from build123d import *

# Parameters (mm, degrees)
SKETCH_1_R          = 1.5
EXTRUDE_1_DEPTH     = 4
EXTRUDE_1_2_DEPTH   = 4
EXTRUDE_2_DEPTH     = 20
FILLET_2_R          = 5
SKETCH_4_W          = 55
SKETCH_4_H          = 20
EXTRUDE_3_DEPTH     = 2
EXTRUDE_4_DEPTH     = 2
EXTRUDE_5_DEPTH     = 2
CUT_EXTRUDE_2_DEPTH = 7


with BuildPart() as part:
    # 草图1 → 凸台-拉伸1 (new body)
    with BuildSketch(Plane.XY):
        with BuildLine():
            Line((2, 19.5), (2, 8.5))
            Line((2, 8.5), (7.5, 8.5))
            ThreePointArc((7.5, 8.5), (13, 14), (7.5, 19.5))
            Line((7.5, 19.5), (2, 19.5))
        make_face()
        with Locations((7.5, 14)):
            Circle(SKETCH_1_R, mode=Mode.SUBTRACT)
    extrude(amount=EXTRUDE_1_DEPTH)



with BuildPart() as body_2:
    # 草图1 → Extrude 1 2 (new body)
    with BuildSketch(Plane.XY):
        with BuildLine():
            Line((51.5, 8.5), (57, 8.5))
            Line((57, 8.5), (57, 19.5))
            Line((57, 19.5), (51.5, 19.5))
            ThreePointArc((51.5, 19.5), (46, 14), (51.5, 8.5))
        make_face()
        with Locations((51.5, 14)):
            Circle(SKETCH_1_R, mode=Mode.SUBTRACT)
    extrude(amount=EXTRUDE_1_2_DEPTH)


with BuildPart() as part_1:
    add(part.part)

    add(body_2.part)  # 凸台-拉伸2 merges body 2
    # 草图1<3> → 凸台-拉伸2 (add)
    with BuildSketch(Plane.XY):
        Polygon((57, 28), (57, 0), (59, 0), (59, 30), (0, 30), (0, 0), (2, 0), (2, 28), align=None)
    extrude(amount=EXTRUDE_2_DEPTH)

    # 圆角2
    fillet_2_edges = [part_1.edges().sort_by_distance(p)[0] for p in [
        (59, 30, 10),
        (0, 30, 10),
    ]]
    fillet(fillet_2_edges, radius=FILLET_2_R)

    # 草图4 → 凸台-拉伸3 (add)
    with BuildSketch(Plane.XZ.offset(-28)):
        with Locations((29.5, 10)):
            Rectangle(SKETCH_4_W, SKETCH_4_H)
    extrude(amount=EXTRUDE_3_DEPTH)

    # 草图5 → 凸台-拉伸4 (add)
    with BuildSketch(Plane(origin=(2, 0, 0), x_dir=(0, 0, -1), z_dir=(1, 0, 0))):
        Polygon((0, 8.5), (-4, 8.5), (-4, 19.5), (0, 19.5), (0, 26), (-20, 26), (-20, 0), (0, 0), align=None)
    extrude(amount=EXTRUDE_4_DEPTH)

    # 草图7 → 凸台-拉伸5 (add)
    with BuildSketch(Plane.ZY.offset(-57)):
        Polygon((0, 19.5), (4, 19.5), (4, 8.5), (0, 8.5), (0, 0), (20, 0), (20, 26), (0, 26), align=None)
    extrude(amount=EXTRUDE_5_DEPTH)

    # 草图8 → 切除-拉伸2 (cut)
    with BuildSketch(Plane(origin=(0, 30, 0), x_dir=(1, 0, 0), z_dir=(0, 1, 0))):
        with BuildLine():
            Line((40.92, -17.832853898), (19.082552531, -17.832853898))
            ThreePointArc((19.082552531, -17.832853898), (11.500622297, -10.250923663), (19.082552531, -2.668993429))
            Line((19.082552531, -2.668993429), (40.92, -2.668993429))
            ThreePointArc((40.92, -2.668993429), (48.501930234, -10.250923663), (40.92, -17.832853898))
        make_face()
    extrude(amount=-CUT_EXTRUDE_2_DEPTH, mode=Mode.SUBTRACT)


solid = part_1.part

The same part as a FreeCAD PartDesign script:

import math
import FreeCAD as App
import Part
import Sketcher
Q = App.Units.Quantity


def edges_at(feature, points):
    """Names of the edges that pass closest to the given points."""
    edges = feature.Shape.Edges
    near = lambda p: min(range(len(edges)), key=lambda i: edges[i].distToShape(Part.Vertex(*p))[0])
    return sorted({f"Edge{near(p) + 1}" for p in points})

doc = App.newDocument("Part")
body = doc.addObject("PartDesign::Body", "Body")

# Sketch on XY plane
sketch1 = doc.addObject("Sketcher::SketchObject", "Sketch")
body.addObject(sketch1)
sketch1.AttachmentSupport = (doc.XY_Plane, [""])
sketch1.MapMode = "FlatFace"
sketch1.addGeometry([
    Part.LineSegment(App.Vector(2, 19.5, 0), App.Vector(2, 8.5, 0)),  # 0
    Part.LineSegment(App.Vector(2, 8.5, 0), App.Vector(7.5, 8.5, 0)),  # 1
    Part.ArcOfCircle(Part.Circle(App.Vector(7.5, 14, 0), App.Vector(0, 0, 1), 5.5), math.radians(-90), math.radians(90)),  # 2
    Part.LineSegment(App.Vector(7.5, 19.5, 0), App.Vector(2, 19.5, 0)),  # 3
    Part.Circle(App.Vector(7.5, 14, 0), App.Vector(0, 0, 1), 1.5),  # 4
], False)
sketch1.addConstraint([
    Sketcher.Constraint("Coincident", 0, 2, 1, 1),
    Sketcher.Constraint("Tangent", 1, 2, 2, 1),
    Sketcher.Constraint("Tangent", 2, 2, 3, 1),
    Sketcher.Constraint("Coincident", 3, 2, 0, 1),
    Sketcher.Constraint("Vertical", 0),
    Sketcher.Constraint("Horizontal", 1),
    Sketcher.Constraint("Horizontal", 3),
    Sketcher.Constraint("Coincident", 4, 3, 2, 3),
    Sketcher.Constraint("Diameter", 4, Q("3 mm")),
    Sketcher.Constraint("Radius", 2, Q("5.5 mm")),
    Sketcher.Constraint("DistanceX", 1, 1, 1, 2, Q("5.5 mm")),
    Sketcher.Constraint("DistanceY", -1, 1, 2, 3, Q("14 mm")),
    Sketcher.Constraint("DistanceX", -1, 1, 0, 2, Q("2 mm")),
])
pad1 = doc.addObject("PartDesign::Pad", "Pad")
body.addObject(pad1)
pad1.Profile = sketch1
pad1.Length = 4
body2 = doc.addObject("PartDesign::Body", "Body001")

# Sketch on XY plane
sketch2 = doc.addObject("Sketcher::SketchObject", "Sketch001")
body2.addObject(sketch2)
sketch2.AttachmentSupport = (doc.getObject("XY_Plane001"), [""])
sketch2.MapMode = "FlatFace"
sketch2.addGeometry([
    Part.LineSegment(App.Vector(51.5, 8.5, 0), App.Vector(57, 8.5, 0)),  # 0
    Part.LineSegment(App.Vector(57, 8.5, 0), App.Vector(57, 19.5, 0)),  # 1
    Part.LineSegment(App.Vector(57, 19.5, 0), App.Vector(51.5, 19.5, 0)),  # 2
    Part.ArcOfCircle(Part.Circle(App.Vector(51.5, 14, 0), App.Vector(0, 0, 1), 5.5), math.radians(90), math.radians(270)),  # 3
    Part.Circle(App.Vector(51.5, 14, 0), App.Vector(0, 0, 1), 1.5),  # 4
], False)
sketch2.addConstraint([
    Sketcher.Constraint("Coincident", 0, 2, 1, 1),
    Sketcher.Constraint("Coincident", 1, 2, 2, 1),
    Sketcher.Constraint("Tangent", 2, 2, 3, 1),
    Sketcher.Constraint("Tangent", 3, 2, 0, 1),
    Sketcher.Constraint("Horizontal", 0),
    Sketcher.Constraint("Vertical", 1),
    Sketcher.Constraint("Horizontal", 2),
    Sketcher.Constraint("Coincident", 4, 3, 3, 3),
    Sketcher.Constraint("Diameter", 4, Q("3 mm")),
    Sketcher.Constraint("Radius", 3, Q("5.5 mm")),
    Sketcher.Constraint("DistanceX", 0, 1, 0, 2, Q("5.5 mm")),
    Sketcher.Constraint("DistanceY", -1, 1, 3, 3, Q("14 mm")),
    Sketcher.Constraint("DistanceX", -1, 1, 0, 2, Q("57 mm")),
])
pad2 = doc.addObject("PartDesign::Pad", "Pad001")
body2.addObject(pad2)
pad2.Profile = sketch2
pad2.Length = 4
body.AllowCompound = True
doc.recompute()

boolean = doc.addObject("PartDesign::Boolean", "Boolean")
body.addObject(boolean)
boolean.Type = "Fuse"
boolean.addObjects([body2])

# Sketch on XY plane
sketch3 = doc.addObject("Sketcher::SketchObject", "Sketch002")
body.addObject(sketch3)
sketch3.AttachmentSupport = (doc.XY_Plane, [""])
sketch3.MapMode = "FlatFace"
sketch3.addGeometry([
    Part.LineSegment(App.Vector(57, 28, 0), App.Vector(57, 0, 0)),  # 0
    Part.LineSegment(App.Vector(57, 0, 0), App.Vector(59, 0, 0)),  # 1
    Part.LineSegment(App.Vector(59, 0, 0), App.Vector(59, 30, 0)),  # 2
    Part.LineSegment(App.Vector(59, 30, 0), App.Vector(0, 30, 0)),  # 3
    Part.LineSegment(App.Vector(0, 30, 0), App.Vector(0, 0, 0)),  # 4
    Part.LineSegment(App.Vector(0, 0, 0), App.Vector(2, 0, 0)),  # 5
    Part.LineSegment(App.Vector(2, 0, 0), App.Vector(2, 28, 0)),  # 6
    Part.LineSegment(App.Vector(2, 28, 0), App.Vector(57, 28, 0)),  # 7
], False)
sketch3.addConstraint([
    Sketcher.Constraint("Coincident", 0, 2, 1, 1),
    Sketcher.Constraint("Coincident", 1, 2, 2, 1),
    Sketcher.Constraint("Coincident", 2, 2, 3, 1),
    Sketcher.Constraint("Coincident", 3, 2, 4, 1),
    Sketcher.Constraint("Coincident", 4, 2, 5, 1),
    Sketcher.Constraint("Coincident", 5, 2, 6, 1),
    Sketcher.Constraint("Coincident", 6, 2, 7, 1),
    Sketcher.Constraint("Coincident", 7, 2, 0, 1),
    Sketcher.Constraint("Vertical", 0),
    Sketcher.Constraint("Horizontal", 1),
    Sketcher.Constraint("Vertical", 2),
    Sketcher.Constraint("Horizontal", 3),
    Sketcher.Constraint("Vertical", 4),
    Sketcher.Constraint("Horizontal", 5),
    Sketcher.Constraint("Vertical", 6),
    Sketcher.Constraint("Horizontal", 7),
    Sketcher.Constraint("Coincident", 4, 2, -1, 1),
    Sketcher.Constraint("PointOnObject", 0, 2, -1),
    Sketcher.Constraint("Equal", 1, 5),
    Sketcher.Constraint("DistanceX", 1, 1, 1, 2, Q("2 mm")),
    Sketcher.Constraint("DistanceX", 3, 2, 3, 1, Q("59 mm")),
    Sketcher.Constraint("DistanceY", 0, 2, 0, 1, Q("28 mm")),
    Sketcher.Constraint("DistanceY", 2, 1, 2, 2, Q("30 mm")),
])
pad3 = doc.addObject("PartDesign::Pad", "Pad002")
body.addObject(pad3)
pad3.Profile = sketch3
pad3.Length = 20
doc.recompute()

fillet = doc.addObject("PartDesign::Fillet", "Fillet")
body.addObject(fillet)
fillet.Base = (pad3, edges_at(pad3, [(59, 30, 10), (0, 30, 10)]))
fillet.Radius = 5

# Sketch on XZ plane
sketch4 = doc.addObject("Sketcher::SketchObject", "Sketch003")
body.addObject(sketch4)
sketch4.AttachmentSupport = (doc.XZ_Plane, [""])
sketch4.MapMode = "FlatFace"
sketch4.AttachmentOffset = App.Placement(App.Vector(0, 0, -28), App.Rotation())
sketch4.addGeometry([
    Part.LineSegment(App.Vector(2, 20, 0), App.Vector(2, 0, 0)),
    Part.LineSegment(App.Vector(2, 0, 0), App.Vector(57, 0, 0)),
    Part.LineSegment(App.Vector(57, 0, 0), App.Vector(57, 20, 0)),
    Part.LineSegment(App.Vector(57, 20, 0), App.Vector(2, 20, 0)),
], False)
sketch4.addConstraint([
    Sketcher.Constraint("Coincident", 0, 2, 1, 1),
    Sketcher.Constraint("Coincident", 1, 2, 2, 1),
    Sketcher.Constraint("Coincident", 2, 2, 3, 1),
    Sketcher.Constraint("Coincident", 3, 2, 0, 1),
    Sketcher.Constraint("Vertical", 0),
    Sketcher.Constraint("Horizontal", 1),
    Sketcher.Constraint("Vertical", 2),
    Sketcher.Constraint("Horizontal", 3),
    Sketcher.Constraint("PointOnObject", 0, 2, -1),
    Sketcher.Constraint("DistanceX", 1, 1, 1, 2, Q("55 mm")),
    Sketcher.Constraint("DistanceY", 0, 2, 0, 1, Q("20 mm")),
    Sketcher.Constraint("DistanceX", -1, 1, 0, 2, Q("2 mm")),
])
pad4 = doc.addObject("PartDesign::Pad", "Pad003")
body.addObject(pad4)
pad4.Profile = sketch4
pad4.Length = 2

# Sketch on YZ plane
sketch5 = doc.addObject("Sketcher::SketchObject", "Sketch004")
body.addObject(sketch5)
sketch5.AttachmentSupport = (doc.YZ_Plane, [""])
sketch5.MapMode = "FlatFace"
sketch5.AttachmentOffset = App.Placement(App.Vector(0, 0, 2), App.Rotation())
sketch5.addGeometry([
    Part.LineSegment(App.Vector(8.5, 0, 0), App.Vector(8.5, 4, 0)),  # 0
    Part.LineSegment(App.Vector(8.5, 4, 0), App.Vector(19.5, 4, 0)),  # 1
    Part.LineSegment(App.Vector(19.5, 4, 0), App.Vector(19.5, 0, 0)),  # 2
    Part.LineSegment(App.Vector(19.5, 0, 0), App.Vector(26, 0, 0)),  # 3
    Part.LineSegment(App.Vector(26, 0, 0), App.Vector(26, 20, 0)),  # 4
    Part.LineSegment(App.Vector(26, 20, 0), App.Vector(0, 20, 0)),  # 5
    Part.LineSegment(App.Vector(0, 20, 0), App.Vector(0, 0, 0)),  # 6
    Part.LineSegment(App.Vector(0, 0, 0), App.Vector(8.5, 0, 0)),  # 7
], False)
sketch5.addConstraint([
    Sketcher.Constraint("Coincident", 0, 2, 1, 1),
    Sketcher.Constraint("Coincident", 1, 2, 2, 1),
    Sketcher.Constraint("Coincident", 2, 2, 3, 1),
    Sketcher.Constraint("Coincident", 3, 2, 4, 1),
    Sketcher.Constraint("Coincident", 4, 2, 5, 1),
    Sketcher.Constraint("Coincident", 5, 2, 6, 1),
    Sketcher.Constraint("Coincident", 6, 2, 7, 1),
    Sketcher.Constraint("Coincident", 7, 2, 0, 1),
    Sketcher.Constraint("Vertical", 0),
    Sketcher.Constraint("Horizontal", 1),
    Sketcher.Constraint("Vertical", 2),
    Sketcher.Constraint("Horizontal", 3),
    Sketcher.Constraint("Vertical", 4),
    Sketcher.Constraint("Horizontal", 5),
    Sketcher.Constraint("Vertical", 6),
    Sketcher.Constraint("Horizontal", 7),
    Sketcher.Constraint("Coincident", 6, 2, -1, 1),
    Sketcher.Constraint("PointOnObject", 2, 2, -1),
    Sketcher.Constraint("DistanceX", 1, 1, 1, 2, Q("11 mm")),
    Sketcher.Constraint("DistanceX", 5, 2, 5, 1, Q("26 mm")),
    Sketcher.Constraint("DistanceY", 0, 1, 0, 2, Q("4 mm")),
    Sketcher.Constraint("DistanceY", 4, 1, 4, 2, Q("20 mm")),
    Sketcher.Constraint("DistanceX", 3, 1, 3, 2, Q("6.5 mm")),
])
pad5 = doc.addObject("PartDesign::Pad", "Pad004")
body.addObject(pad5)
pad5.Profile = sketch5
pad5.Length = 2

# Sketch on YZ plane
sketch6 = doc.addObject("Sketcher::SketchObject", "Sketch005")
body.addObject(sketch6)
sketch6.AttachmentSupport = (doc.YZ_Plane, [""])
sketch6.MapMode = "FlatFace"
sketch6.AttachmentOffset = App.Placement(App.Vector(0, 0, 57), App.Rotation())
sketch6.addGeometry([
    Part.LineSegment(App.Vector(19.5, 0, 0), App.Vector(19.5, 4, 0)),  # 0
    Part.LineSegment(App.Vector(19.5, 4, 0), App.Vector(8.5, 4, 0)),  # 1
    Part.LineSegment(App.Vector(8.5, 4, 0), App.Vector(8.5, 0, 0)),  # 2
    Part.LineSegment(App.Vector(8.5, 0, 0), App.Vector(0, 0, 0)),  # 3
    Part.LineSegment(App.Vector(0, 0, 0), App.Vector(0, 20, 0)),  # 4
    Part.LineSegment(App.Vector(0, 20, 0), App.Vector(26, 20, 0)),  # 5
    Part.LineSegment(App.Vector(26, 20, 0), App.Vector(26, 0, 0)),  # 6
    Part.LineSegment(App.Vector(26, 0, 0), App.Vector(19.5, 0, 0)),  # 7
], False)
sketch6.addConstraint([
    Sketcher.Constraint("Coincident", 0, 2, 1, 1),
    Sketcher.Constraint("Coincident", 1, 2, 2, 1),
    Sketcher.Constraint("Coincident", 2, 2, 3, 1),
    Sketcher.Constraint("Coincident", 3, 2, 4, 1),
    Sketcher.Constraint("Coincident", 4, 2, 5, 1),
    Sketcher.Constraint("Coincident", 5, 2, 6, 1),
    Sketcher.Constraint("Coincident", 6, 2, 7, 1),
    Sketcher.Constraint("Coincident", 7, 2, 0, 1),
    Sketcher.Constraint("Vertical", 0),
    Sketcher.Constraint("Horizontal", 1),
    Sketcher.Constraint("Vertical", 2),
    Sketcher.Constraint("Horizontal", 3),
    Sketcher.Constraint("Vertical", 4),
    Sketcher.Constraint("Horizontal", 5),
    Sketcher.Constraint("Vertical", 6),
    Sketcher.Constraint("Horizontal", 7),
    Sketcher.Constraint("Coincident", 3, 2, -1, 1),
    Sketcher.Constraint("PointOnObject", 6, 2, -1),
    Sketcher.Constraint("DistanceX", 1, 2, 1, 1, Q("11 mm")),
    Sketcher.Constraint("DistanceX", 5, 1, 5, 2, Q("26 mm")),
    Sketcher.Constraint("DistanceY", 0, 1, 0, 2, Q("4 mm")),
    Sketcher.Constraint("DistanceY", 4, 1, 4, 2, Q("20 mm")),
    Sketcher.Constraint("DistanceX", 3, 2, 3, 1, Q("8.5 mm")),
])
pad6 = doc.addObject("PartDesign::Pad", "Pad005")
body.addObject(pad6)
pad6.Profile = sketch6
pad6.Length = 2
pad6.Reversed = True

# Sketch on XZ plane
sketch7 = doc.addObject("Sketcher::SketchObject", "Sketch006")
body.addObject(sketch7)
sketch7.AttachmentSupport = (doc.XZ_Plane, [""])
sketch7.MapMode = "FlatFace"
sketch7.AttachmentOffset = App.Placement(App.Vector(0, 0, -30), App.Rotation())
sketch7.addGeometry([
    Part.LineSegment(App.Vector(19, 18, 0), App.Vector(41, 18, 0)),
    Part.ArcOfCircle(Part.Circle(App.Vector(41, 10, 0), App.Vector(0, 0, 1), 8), math.radians(-90), math.radians(90)),
    Part.LineSegment(App.Vector(41, 3, 0), App.Vector(19, 3, 0)),
    Part.ArcOfCircle(Part.Circle(App.Vector(19, 10, 0), App.Vector(0, 0, 1), 8), math.radians(90), math.radians(270)),
], False)
sketch7.addConstraint([
    Sketcher.Constraint("Tangent", 0, 2, 1, 2),
    Sketcher.Constraint("Tangent", 1, 1, 2, 1),
    Sketcher.Constraint("Tangent", 2, 2, 3, 2),
    Sketcher.Constraint("Tangent", 3, 1, 0, 1),
    Sketcher.Constraint("Horizontal", 0),
    Sketcher.Constraint("Horizontal", 2),
    Sketcher.Constraint("DistanceX", -1, 1, 1, 3, Q("40.92 mm")),
    Sketcher.Constraint("Radius", 1, Q("7.58193 mm")),
    Sketcher.Constraint("DistanceX", 0, 1, 0, 2, Q("21.837447 mm")),
    Sketcher.Constraint("DistanceY", -1, 1, 1, 3, Q("10.250924 mm")),
])
pocket1 = doc.addObject("PartDesign::Pocket", "Pocket")
body.addObject(pocket1)
pocket1.Profile = sketch7
pocket1.Length = 7
pocket1.Reversed = True

doc.recompute()
